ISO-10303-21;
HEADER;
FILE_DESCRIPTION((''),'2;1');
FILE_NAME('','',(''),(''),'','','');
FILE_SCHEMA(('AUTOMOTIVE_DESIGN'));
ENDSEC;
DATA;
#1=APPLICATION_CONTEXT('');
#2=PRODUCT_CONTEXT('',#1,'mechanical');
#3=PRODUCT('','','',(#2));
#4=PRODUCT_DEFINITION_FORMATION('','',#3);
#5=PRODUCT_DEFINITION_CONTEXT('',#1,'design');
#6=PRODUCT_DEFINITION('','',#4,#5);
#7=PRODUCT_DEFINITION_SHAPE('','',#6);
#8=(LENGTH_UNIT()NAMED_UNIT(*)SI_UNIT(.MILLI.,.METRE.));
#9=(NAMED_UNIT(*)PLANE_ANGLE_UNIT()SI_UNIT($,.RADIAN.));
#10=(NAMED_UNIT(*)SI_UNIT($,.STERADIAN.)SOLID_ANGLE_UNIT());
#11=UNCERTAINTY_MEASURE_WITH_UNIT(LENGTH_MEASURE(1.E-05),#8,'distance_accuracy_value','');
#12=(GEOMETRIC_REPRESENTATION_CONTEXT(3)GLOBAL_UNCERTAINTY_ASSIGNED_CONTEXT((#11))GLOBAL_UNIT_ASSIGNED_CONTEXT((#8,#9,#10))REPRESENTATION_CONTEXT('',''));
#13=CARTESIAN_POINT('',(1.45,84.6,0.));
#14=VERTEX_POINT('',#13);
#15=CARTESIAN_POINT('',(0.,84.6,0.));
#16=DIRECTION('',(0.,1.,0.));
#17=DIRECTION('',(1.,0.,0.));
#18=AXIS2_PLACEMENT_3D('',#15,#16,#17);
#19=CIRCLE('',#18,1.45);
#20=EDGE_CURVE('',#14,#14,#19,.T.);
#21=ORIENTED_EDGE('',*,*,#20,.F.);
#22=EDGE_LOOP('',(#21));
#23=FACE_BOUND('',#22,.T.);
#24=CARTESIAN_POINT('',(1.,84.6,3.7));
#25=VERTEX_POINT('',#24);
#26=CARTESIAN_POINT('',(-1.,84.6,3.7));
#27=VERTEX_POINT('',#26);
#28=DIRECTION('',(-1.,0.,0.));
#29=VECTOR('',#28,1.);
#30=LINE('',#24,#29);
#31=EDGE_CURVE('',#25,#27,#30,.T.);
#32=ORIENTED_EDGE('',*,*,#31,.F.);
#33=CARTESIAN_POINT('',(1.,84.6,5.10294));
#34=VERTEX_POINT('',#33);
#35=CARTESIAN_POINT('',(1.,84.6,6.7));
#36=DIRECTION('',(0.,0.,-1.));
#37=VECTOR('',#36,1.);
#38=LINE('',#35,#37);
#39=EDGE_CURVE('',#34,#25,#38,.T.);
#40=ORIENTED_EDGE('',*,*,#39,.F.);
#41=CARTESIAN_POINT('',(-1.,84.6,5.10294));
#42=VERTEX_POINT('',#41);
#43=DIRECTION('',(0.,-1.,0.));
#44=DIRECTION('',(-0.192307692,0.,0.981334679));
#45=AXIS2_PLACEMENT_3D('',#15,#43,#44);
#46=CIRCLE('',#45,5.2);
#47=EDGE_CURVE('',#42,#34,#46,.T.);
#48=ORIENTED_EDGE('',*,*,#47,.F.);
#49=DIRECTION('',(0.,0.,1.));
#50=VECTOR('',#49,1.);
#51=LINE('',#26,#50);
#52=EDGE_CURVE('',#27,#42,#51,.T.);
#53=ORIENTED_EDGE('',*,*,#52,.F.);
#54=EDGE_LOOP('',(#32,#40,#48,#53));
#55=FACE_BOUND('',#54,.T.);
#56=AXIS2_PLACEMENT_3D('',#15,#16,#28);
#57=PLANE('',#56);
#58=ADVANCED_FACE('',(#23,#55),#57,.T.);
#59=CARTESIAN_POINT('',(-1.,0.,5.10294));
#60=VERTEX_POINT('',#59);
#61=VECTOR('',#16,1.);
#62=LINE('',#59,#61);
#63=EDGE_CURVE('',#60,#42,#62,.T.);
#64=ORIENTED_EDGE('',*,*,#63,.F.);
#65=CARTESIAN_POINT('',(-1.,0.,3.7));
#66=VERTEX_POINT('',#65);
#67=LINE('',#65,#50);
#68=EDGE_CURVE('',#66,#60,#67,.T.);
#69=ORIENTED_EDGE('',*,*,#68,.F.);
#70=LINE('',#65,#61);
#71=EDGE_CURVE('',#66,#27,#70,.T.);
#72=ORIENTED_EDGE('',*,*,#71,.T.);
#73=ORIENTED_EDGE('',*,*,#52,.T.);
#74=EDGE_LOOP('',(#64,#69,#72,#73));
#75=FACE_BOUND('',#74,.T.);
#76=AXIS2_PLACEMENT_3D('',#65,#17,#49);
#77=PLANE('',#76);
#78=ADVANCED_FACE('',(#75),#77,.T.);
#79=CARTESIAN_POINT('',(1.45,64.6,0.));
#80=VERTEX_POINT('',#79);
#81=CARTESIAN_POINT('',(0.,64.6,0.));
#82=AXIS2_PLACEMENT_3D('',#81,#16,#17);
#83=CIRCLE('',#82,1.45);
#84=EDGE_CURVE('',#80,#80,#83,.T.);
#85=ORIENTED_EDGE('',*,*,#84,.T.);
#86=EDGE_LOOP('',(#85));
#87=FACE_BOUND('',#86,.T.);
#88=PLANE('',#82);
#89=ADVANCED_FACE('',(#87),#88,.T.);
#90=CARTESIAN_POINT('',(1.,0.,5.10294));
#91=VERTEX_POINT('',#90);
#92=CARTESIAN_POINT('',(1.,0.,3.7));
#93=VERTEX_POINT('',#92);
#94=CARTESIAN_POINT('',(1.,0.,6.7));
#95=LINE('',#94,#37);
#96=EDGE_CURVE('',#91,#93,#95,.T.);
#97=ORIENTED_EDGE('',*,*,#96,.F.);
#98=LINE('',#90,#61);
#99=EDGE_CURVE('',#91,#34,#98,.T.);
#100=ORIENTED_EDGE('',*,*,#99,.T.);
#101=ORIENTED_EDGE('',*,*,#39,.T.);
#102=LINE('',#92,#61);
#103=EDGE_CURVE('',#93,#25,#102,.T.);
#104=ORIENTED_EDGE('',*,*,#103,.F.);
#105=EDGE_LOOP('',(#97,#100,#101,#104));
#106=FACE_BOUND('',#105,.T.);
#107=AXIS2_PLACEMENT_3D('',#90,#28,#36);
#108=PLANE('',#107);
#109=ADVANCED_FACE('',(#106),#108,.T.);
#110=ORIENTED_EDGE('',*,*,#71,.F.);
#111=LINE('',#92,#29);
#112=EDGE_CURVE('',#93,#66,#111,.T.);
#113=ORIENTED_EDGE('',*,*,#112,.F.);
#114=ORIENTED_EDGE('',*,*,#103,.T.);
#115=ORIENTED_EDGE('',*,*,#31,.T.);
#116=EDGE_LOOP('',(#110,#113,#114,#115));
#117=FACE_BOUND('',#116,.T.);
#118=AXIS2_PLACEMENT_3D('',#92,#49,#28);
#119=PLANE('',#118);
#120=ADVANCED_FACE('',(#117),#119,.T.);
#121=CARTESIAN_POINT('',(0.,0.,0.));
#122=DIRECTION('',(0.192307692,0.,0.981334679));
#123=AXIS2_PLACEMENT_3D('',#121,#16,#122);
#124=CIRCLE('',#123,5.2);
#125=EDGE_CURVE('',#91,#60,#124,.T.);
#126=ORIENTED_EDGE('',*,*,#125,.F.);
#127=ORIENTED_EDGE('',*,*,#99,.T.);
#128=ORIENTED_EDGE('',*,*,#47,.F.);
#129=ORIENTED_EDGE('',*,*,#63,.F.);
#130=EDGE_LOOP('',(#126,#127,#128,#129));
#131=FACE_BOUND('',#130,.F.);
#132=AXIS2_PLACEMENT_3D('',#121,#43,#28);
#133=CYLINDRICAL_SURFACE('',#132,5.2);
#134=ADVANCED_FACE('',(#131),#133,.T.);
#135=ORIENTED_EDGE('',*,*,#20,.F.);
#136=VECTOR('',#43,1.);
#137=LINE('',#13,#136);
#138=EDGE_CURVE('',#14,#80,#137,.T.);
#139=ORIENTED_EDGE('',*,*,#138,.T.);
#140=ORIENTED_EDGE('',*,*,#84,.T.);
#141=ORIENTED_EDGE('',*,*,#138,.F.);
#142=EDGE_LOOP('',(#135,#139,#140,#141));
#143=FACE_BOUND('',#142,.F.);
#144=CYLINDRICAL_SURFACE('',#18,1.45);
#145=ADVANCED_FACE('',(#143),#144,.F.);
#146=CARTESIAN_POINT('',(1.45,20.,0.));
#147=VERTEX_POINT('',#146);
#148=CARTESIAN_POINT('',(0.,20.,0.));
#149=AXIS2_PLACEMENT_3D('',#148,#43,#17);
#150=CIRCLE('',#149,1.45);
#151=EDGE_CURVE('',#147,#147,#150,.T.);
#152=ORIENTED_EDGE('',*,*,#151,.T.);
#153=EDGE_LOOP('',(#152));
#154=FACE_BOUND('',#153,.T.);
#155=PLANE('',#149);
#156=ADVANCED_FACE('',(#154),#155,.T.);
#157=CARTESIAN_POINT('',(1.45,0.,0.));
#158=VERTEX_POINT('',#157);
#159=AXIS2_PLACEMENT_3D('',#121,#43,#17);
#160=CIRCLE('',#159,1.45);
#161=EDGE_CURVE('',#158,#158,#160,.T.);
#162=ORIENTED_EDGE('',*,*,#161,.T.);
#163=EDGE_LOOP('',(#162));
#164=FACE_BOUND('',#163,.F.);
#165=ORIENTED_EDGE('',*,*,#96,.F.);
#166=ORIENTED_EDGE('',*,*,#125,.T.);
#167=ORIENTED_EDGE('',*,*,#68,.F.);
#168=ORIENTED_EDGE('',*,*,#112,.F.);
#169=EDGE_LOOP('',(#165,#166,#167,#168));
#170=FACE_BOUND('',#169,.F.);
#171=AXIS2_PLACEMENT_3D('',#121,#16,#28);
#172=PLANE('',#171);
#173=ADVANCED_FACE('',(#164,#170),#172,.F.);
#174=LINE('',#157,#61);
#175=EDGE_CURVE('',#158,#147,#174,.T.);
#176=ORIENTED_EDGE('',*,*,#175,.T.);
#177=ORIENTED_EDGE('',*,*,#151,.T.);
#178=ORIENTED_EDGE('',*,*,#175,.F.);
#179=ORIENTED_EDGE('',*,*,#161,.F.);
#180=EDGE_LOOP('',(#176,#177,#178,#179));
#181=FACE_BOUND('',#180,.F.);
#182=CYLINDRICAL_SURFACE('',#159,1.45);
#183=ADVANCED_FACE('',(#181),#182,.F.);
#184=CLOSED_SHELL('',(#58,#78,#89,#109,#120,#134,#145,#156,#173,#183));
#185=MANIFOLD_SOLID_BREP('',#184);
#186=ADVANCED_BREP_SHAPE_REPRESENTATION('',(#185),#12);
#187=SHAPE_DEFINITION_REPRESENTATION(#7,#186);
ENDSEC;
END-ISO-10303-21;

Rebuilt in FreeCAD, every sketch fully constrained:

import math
import FreeCAD as App
import Part
import Sketcher
from FreeCAD import Vector
Q = App.Units.Quantity

doc = App.newDocument("Part")
body = doc.addObject("PartDesign::Body", "Body")

sketch1 = doc.addObject("Sketcher::SketchObject", "Sketch")
body.addObject(sketch1)
sketch1.AttachmentSupport = (doc.XZ_Plane, [""])
sketch1.MapMode = "FlatFace"
sketch1.addGeometry(Part.ArcOfCircle(Part.Circle(Vector(0, 0, 0), Vector(0, 0, 1), 5.2), math.radians(101), math.radians(439)), False)
sketch1.addGeometry(Part.LineSegment(Vector(-1, 5.1, 0), Vector(-1, 3.7, 0)), False)
sketch1.addGeometry(Part.LineSegment(Vector(-1, 3.7, 0), Vector(1, 3.7, 0)), False)
sketch1.addGeometry(Part.LineSegment(Vector(1, 3.7, 0), Vector(1, 5.1, 0)), False)
sketch1.addConstraint(Sketcher.Constraint("Coincident", 0, 1, 1, 1))
sketch1.addConstraint(Sketcher.Constraint("Coincident", 1, 2, 2, 1))
sketch1.addConstraint(Sketcher.Constraint("Coincident", 2, 2, 3, 1))
sketch1.addConstraint(Sketcher.Constraint("Coincident", 3, 2, 0, 2))
sketch1.addConstraint(Sketcher.Constraint("Vertical", 1))
sketch1.addConstraint(Sketcher.Constraint("Horizontal", 2))
sketch1.addConstraint(Sketcher.Constraint("Vertical", 3))
sketch1.addConstraint(Sketcher.Constraint("Coincident", 0, 3, -1, 1))
sketch1.addConstraint(Sketcher.Constraint("Horizontal", 0, 1, 3, 2))
sketch1.addConstraint(Sketcher.Constraint("Radius", 0, Q("5.2 mm")))
sketch1.addConstraint(Sketcher.Constraint("DistanceX", 2, 1, 2, 2, Q("2 mm")))
sketch1.addConstraint(Sketcher.Constraint("DistanceY", -1, 1, 1, 2, Q("3.7 mm")))
pad1 = doc.addObject("PartDesign::Pad", "Pad")
body.addObject(pad1)
pad1.Profile = sketch1
pad1.Length = 84.6
pad1.Reversed = True

sketch2 = doc.addObject("Sketcher::SketchObject", "Sketch001")
body.addObject(sketch2)
sketch2.AttachmentSupport = (doc.XZ_Plane, [""])
sketch2.MapMode = "FlatFace"
sketch2.AttachmentOffset = App.Placement(Vector(0, 0, -84.6), App.Rotation())
sketch2.addGeometry(Part.Circle(Vector(0, 0, 0), Vector(0, 0, 1), 1.4), False)
sketch2.addConstraint(Sketcher.Constraint("Coincident", 0, 3, -1, 1))
sketch2.addConstraint(Sketcher.Constraint("Diameter", 0, Q("2.9 mm")))
pocket1 = doc.addObject("PartDesign::Pocket", "Pocket")
body.addObject(pocket1)
pocket1.Profile = sketch2
pocket1.Length = 20
pocket1.Reversed = True

sketch3 = doc.addObject("Sketcher::SketchObject", "Sketch002")
body.addObject(sketch3)
sketch3.AttachmentSupport = (doc.XZ_Plane, [""])
sketch3.MapMode = "FlatFace"
sketch3.addGeometry(Part.Circle(Vector(0, 0, 0), Vector(0, 0, 1), 1.4), False)
sketch3.addConstraint(Sketcher.Constraint("Coincident", 0, 3, -1, 1))
sketch3.addConstraint(Sketcher.Constraint("Diameter", 0, Q("2.9 mm")))
pocket2 = doc.addObject("PartDesign::Pocket", "Pocket001")
body.addObject(pocket2)
pocket2.Profile = sketch3
pocket2.Length = 20

doc.recompute()
